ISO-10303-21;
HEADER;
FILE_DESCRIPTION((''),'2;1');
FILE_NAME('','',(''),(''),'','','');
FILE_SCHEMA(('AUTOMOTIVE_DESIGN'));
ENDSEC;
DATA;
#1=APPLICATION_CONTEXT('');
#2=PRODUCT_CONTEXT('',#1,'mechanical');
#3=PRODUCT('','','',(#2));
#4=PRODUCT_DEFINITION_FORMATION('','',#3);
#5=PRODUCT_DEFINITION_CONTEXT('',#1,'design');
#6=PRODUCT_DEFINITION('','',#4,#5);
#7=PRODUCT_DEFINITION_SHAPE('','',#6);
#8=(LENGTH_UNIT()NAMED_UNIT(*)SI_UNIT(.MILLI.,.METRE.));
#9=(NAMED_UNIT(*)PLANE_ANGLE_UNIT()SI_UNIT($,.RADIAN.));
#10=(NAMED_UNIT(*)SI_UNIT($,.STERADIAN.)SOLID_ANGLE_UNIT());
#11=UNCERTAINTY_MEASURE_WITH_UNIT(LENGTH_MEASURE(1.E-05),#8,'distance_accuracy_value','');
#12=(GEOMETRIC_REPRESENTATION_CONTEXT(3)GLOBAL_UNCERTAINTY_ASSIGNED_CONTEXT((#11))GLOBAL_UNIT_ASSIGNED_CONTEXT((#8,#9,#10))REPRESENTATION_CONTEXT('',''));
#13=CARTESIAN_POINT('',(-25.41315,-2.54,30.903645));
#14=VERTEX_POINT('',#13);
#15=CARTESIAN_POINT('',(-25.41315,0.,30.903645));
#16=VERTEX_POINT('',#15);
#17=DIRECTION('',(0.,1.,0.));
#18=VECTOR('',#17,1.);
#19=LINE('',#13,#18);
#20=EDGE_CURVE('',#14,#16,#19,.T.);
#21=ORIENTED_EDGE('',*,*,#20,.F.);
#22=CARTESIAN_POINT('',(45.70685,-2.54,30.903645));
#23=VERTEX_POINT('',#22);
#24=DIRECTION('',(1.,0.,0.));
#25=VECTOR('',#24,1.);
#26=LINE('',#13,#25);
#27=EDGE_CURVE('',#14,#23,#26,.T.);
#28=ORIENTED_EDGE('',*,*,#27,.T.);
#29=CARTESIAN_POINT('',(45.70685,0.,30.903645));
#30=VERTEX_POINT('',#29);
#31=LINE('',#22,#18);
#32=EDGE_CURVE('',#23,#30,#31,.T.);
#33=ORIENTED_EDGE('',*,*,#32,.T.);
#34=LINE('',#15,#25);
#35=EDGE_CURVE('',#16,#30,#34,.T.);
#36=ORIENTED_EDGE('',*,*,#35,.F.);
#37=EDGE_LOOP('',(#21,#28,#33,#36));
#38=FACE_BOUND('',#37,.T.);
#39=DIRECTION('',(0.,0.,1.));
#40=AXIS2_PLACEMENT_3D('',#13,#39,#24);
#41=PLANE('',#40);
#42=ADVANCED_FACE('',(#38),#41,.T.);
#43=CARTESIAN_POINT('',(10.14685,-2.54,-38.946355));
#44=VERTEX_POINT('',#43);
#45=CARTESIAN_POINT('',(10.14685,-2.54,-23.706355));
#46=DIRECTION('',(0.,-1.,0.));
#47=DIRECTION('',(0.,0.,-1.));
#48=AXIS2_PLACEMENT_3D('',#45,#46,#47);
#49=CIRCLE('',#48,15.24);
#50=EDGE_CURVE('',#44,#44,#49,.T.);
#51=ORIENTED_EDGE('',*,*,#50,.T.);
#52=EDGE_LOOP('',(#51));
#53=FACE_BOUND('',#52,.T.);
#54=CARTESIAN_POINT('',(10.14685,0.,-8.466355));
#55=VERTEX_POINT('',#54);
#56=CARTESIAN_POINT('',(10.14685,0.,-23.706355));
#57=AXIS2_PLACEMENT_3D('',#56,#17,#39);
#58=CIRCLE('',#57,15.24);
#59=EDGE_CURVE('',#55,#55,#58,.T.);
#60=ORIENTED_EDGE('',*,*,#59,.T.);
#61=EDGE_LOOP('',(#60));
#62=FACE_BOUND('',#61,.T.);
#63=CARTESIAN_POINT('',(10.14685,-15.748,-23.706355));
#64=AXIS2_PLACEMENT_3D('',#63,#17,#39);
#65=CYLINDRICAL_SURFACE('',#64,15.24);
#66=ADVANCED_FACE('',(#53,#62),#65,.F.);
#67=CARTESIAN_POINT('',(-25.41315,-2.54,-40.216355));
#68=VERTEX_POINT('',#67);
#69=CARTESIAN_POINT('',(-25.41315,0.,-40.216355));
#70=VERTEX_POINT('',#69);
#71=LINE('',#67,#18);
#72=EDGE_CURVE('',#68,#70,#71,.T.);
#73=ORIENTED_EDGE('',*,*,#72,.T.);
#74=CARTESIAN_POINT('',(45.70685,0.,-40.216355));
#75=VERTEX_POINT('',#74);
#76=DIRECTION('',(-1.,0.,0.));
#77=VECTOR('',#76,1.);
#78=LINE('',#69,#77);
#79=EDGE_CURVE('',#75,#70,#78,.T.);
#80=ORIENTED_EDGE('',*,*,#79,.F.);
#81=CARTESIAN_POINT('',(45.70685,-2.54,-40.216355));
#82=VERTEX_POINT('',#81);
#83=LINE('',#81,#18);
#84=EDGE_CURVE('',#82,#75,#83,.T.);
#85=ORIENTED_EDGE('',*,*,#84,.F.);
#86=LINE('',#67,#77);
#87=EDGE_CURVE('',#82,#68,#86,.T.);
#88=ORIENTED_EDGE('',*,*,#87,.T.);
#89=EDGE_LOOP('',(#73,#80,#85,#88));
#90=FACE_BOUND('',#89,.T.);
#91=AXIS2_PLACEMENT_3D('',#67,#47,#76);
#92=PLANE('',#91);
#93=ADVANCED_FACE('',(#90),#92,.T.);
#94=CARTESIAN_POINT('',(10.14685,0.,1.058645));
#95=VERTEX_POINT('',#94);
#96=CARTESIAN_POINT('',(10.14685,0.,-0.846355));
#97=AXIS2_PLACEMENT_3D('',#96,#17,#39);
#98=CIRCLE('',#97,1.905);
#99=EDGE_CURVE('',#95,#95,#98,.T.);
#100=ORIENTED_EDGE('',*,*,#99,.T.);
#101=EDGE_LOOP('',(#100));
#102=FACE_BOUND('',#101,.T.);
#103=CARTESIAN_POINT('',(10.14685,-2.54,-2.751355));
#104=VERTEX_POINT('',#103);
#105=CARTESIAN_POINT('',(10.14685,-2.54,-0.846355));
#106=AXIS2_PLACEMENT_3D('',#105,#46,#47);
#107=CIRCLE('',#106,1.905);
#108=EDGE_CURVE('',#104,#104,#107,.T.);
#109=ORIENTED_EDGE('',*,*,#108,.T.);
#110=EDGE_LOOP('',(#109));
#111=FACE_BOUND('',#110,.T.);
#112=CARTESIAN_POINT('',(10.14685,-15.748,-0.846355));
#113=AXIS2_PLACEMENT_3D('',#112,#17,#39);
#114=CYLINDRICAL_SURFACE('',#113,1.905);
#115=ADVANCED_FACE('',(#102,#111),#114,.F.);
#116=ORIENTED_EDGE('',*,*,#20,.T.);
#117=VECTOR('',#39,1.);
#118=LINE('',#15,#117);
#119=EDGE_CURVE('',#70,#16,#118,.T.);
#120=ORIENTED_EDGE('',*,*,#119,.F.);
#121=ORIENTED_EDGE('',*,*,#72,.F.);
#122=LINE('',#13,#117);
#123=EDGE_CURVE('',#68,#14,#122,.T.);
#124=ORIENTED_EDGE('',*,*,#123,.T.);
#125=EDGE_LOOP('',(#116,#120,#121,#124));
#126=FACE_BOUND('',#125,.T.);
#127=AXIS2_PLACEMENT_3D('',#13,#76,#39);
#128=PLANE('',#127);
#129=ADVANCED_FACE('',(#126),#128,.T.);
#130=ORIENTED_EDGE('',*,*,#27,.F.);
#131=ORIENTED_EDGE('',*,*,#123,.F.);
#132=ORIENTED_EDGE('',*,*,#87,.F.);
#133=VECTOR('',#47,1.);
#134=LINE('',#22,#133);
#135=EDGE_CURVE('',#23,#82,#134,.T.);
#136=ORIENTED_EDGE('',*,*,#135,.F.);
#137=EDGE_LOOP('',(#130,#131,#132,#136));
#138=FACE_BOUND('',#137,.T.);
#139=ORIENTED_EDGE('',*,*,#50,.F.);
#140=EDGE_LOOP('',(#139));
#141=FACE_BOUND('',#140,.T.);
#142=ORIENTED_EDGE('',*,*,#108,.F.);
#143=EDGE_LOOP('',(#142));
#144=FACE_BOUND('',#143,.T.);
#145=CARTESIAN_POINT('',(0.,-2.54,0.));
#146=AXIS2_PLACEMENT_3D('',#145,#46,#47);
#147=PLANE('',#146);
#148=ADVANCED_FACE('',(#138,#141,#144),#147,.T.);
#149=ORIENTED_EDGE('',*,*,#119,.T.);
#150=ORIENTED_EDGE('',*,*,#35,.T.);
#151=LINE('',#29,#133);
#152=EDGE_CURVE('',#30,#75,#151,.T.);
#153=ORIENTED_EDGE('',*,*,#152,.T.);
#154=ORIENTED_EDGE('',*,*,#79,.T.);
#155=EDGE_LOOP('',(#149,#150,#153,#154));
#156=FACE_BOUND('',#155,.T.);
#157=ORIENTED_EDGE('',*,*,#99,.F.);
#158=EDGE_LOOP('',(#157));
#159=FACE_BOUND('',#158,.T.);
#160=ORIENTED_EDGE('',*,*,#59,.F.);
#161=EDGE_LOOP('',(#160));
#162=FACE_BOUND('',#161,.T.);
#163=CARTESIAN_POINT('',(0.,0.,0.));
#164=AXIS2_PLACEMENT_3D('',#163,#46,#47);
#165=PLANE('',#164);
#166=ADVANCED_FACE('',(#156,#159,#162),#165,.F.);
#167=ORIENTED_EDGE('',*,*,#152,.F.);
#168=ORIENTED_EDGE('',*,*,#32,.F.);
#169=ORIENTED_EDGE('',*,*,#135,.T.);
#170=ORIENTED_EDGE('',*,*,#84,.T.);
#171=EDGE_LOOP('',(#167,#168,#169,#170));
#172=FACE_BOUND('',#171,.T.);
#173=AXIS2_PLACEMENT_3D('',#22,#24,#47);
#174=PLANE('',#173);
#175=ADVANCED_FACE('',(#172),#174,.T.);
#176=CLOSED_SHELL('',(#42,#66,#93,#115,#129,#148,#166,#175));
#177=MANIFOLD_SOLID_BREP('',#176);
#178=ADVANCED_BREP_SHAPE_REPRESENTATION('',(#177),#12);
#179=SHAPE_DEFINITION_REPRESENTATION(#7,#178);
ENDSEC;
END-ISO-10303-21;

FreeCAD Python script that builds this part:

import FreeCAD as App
import Part
import Sketcher

V = App.Vector
Q = App.Units.Quantity


def add_polygon(sketch, points):
    """Adds a closed chain of lines whose ends are joined by coincident constraints."""
    first, n = sketch.GeometryCount, len(points)
    for a, b in zip(points, points[1:] + points[:1]):
        sketch.addGeometry(Part.LineSegment(App.Vector(*a, 0), App.Vector(*b, 0)), False)
    for i in range(n):
        sketch.addConstraint(Sketcher.Constraint("Coincident", first + i, 2, first + (i + 1) % n, 1))

doc = App.newDocument("Part")
params = doc.addObject("Spreadsheet::Sheet", "Params")
for row, (alias, value) in enumerate([
    ("sketch1_width", "2.8 in"),
    ("pad1_length", "0.1 in"),
    ("sketch2_diameter", "1.2 in"),
    ("pocket1_length", "0.62 in"),
    ("sketch3_diameter", "0.15 in"),
    ("pocket2_length", "0.62 in"),
], start=1):
    params.set(f"A{row}", alias)
    params.set(f"B{row}", "=" + value)
    params.setAlias(f"B{row}", alias)

body = doc.addObject("PartDesign::Body", "Body")

sketch1 = doc.addObject("Sketcher::SketchObject", "Sketch")
body.addObject(sketch1)
sketch1.AttachmentSupport = (doc.XZ_Plane, [""])
sketch1.MapMode = "FlatFace"
add_polygon(sketch1, [(-25, -40), (-25, 31), (46, 31), (46, -40)])
sketch1.addConstraint(Sketcher.Constraint("Vertical", 0))
sketch1.addConstraint(Sketcher.Constraint("Horizontal", 1))
sketch1.addConstraint(Sketcher.Constraint("Vertical", 2))
sketch1.addConstraint(Sketcher.Constraint("Horizontal", 3))
sketch1.addConstraint(Sketcher.Constraint("Equal", 3, 0))
sketch1.addConstraint(Sketcher.Constraint("DistanceX", 1, 1, 1, 2, Q("2.8 in")))
sketch1.addConstraint(Sketcher.Constraint("DistanceX", 0, 2, -1, 1, Q("25.41315 mm")))
sketch1.addConstraint(Sketcher.Constraint("DistanceY", -1, 1, 0, 2, Q("30.903645 mm")))
sketch1.setExpression("Constraints[9]", "Params.sketch1_width")
pad1 = doc.addObject("PartDesign::Pad", "Pad")
body.addObject(pad1)
pad1.Profile = sketch1
pad1.setExpression("Length", "Params.pad1_length")

sketch2 = doc.addObject("Sketcher::SketchObject", "Sketch001")
body.addObject(sketch2)
sketch2.AttachmentSupport = (doc.XZ_Plane, [""])
sketch2.MapMode = "FlatFace"
sketch2.addGeometry(Part.Circle(V(10, -24, 0), V(0, 0, 1), 15), False)
sketch2.addConstraint(Sketcher.Constraint("Diameter", 0, Q("1.2 in")))
sketch2.addConstraint(Sketcher.Constraint("DistanceX", -1, 1, 0, 3, Q("10.14685 mm")))
sketch2.addConstraint(Sketcher.Constraint("DistanceY", 0, 3, -1, 1, Q("23.706355 mm")))
sketch2.setExpression("Constraints[0]", "Params.sketch2_diameter")
pocket1 = doc.addObject("PartDesign::Pocket", "Pocket")
body.addObject(pocket1)
pocket1.Profile = sketch2
pocket1.setExpression("Length", "Params.pocket1_length")
pocket1.Reversed = True

sketch3 = doc.addObject("Sketcher::SketchObject", "Sketch002")
body.addObject(sketch3)
sketch3.AttachmentSupport = (doc.XZ_Plane, [""])
sketch3.MapMode = "FlatFace"
sketch3.addGeometry(Part.Circle(V(10.1, -0.8, 0), V(0, 0, 1), 1.9), False)
sketch3.addConstraint(Sketcher.Constraint("Diameter", 0, Q("0.15 in")))
sketch3.addConstraint(Sketcher.Constraint("DistanceX", -1, 1, 0, 3, Q("10.14685 mm")))
sketch3.addConstraint(Sketcher.Constraint("DistanceY", 0, 3, -1, 1, Q("0.846355 mm")))
sketch3.setExpression("Constraints[0]", "Params.sketch3_diameter")
pocket2 = doc.addObject("PartDesign::Pocket", "Pocket001")
body.addObject(pocket2)
pocket2.Profile = sketch3
pocket2.setExpression("Length", "Params.pocket2_length")
pocket2.Reversed = True

doc.recompute()
